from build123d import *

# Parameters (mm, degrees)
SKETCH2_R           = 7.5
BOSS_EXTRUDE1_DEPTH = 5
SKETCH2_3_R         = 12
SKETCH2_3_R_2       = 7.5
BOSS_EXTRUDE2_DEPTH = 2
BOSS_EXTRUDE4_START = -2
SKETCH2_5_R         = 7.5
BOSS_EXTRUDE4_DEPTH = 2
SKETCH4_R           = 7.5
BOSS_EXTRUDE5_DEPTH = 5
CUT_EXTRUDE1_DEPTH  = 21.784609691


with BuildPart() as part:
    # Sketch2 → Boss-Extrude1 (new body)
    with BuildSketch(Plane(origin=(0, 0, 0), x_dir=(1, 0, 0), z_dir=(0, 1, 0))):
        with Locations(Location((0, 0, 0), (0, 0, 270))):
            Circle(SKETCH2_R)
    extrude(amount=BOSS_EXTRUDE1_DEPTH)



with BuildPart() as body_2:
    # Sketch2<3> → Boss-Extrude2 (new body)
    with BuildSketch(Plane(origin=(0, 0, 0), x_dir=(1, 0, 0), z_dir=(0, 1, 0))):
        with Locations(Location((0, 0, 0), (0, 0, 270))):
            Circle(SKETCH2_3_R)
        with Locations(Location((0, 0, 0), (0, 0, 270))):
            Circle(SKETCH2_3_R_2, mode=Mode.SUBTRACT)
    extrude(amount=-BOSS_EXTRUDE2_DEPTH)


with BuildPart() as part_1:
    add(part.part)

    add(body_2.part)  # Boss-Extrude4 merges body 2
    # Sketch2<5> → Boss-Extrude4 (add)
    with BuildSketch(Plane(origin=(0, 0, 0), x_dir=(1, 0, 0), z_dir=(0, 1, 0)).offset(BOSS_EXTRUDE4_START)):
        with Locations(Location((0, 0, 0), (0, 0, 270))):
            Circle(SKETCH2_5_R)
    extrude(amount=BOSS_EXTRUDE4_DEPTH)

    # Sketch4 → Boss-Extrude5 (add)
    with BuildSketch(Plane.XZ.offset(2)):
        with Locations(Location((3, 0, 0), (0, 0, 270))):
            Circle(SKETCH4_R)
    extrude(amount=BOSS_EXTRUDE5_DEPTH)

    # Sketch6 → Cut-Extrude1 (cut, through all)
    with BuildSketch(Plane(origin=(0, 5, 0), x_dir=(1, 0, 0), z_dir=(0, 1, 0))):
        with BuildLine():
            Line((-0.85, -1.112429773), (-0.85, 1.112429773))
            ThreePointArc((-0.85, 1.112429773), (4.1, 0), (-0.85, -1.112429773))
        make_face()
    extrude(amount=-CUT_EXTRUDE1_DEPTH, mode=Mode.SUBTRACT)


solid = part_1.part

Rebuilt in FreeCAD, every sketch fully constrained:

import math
import FreeCAD as App
import Part
import Sketcher
from FreeCAD import Vector

doc = App.newDocument("Part")
body = doc.addObject("PartDesign::Body", "Body")

# Sketch on XZ plane
sketch1 = body.newObject("Sketcher::SketchObject", "Sketch")
sketch1.AttachmentSupport = (doc.getObject("XZ_Plane"), [""])
sketch1.MapMode = "FlatFace"
sketch1.addGeometry(Part.Circle(Vector(0, 0, 0), Vector(0, 0, 1), 8), False)
sketch1.addConstraint([
    Sketcher.Constraint("Coincident", 0, 3, -1, 1),
    Sketcher.Constraint("Diameter", 0, 15.0),
])
pad1 = body.newObject("PartDesign::Pad", "Pad")
pad1.Profile = sketch1
pad1.Length = 5
pad1.Reversed = True
body2 = doc.addObject("PartDesign::Body", "Body001")

# Sketch on XZ plane
sketch2 = body2.newObject("Sketcher::SketchObject", "Sketch001")
sketch2.AttachmentSupport = (doc.getObject("XZ_Plane001"), [""])
sketch2.MapMode = "FlatFace"
sketch2.addGeometry([
    Part.Circle(Vector(0, 0, 0), Vector(0, 0, 1), 12),
    Part.Circle(Vector(0, 0, 0), Vector(0, 0, 1), 8),
], False)
sketch2.addConstraint([
    Sketcher.Constraint("Coincident", 0, 3, -1, 1),
    Sketcher.Constraint("Coincident", 1, 3, -1, 1),
    Sketcher.Constraint("Diameter", 0, 24.0),
    Sketcher.Constraint("Diameter", 1, 15.0),
])
pad2 = body2.newObject("PartDesign::Pad", "Pad001")
pad2.Profile = sketch2
pad2.Length = 2
body.AllowCompound = True
doc.recompute()

boolean = body.newObject("PartDesign::Boolean", "Boolean")
boolean.Type = "Fuse"
boolean.addObjects([body2])

# Sketch on XZ plane
sketch3 = body.newObject("Sketcher::SketchObject", "Sketch002")
sketch3.AttachmentSupport = (doc.getObject("XZ_Plane"), [""])
sketch3.MapMode = "FlatFace"
sketch3.AttachmentOffset = App.Placement(Vector(0, 0, 2), App.Rotation())
sketch3.addGeometry(Part.Circle(Vector(0, 0, 0), Vector(0, 0, 1), 8), False)
sketch3.addConstraint([
    Sketcher.Constraint("Coincident", 0, 3, -1, 1),
    Sketcher.Constraint("Diameter", 0, 15.0),
])
pad3 = body.newObject("PartDesign::Pad", "Pad002")
pad3.Profile = sketch3
pad3.Length = 2
pad3.Reversed = True

# Sketch on XZ plane
sketch4 = body.newObject("Sketcher::SketchObject", "Sketch003")
sketch4.AttachmentSupport = (doc.getObject("XZ_Plane"), [""])
sketch4.MapMode = "FlatFace"
sketch4.AttachmentOffset = App.Placement(Vector(0, 0, 2), App.Rotation())
sketch4.addGeometry(Part.Circle(Vector(3, 0, 0), Vector(0, 0, 1), 8), False)
sketch4.addConstraint([
    Sketcher.Constraint("PointOnObject", 0, 3, -1),
    Sketcher.Constraint("Diameter", 0, 15.0),
    Sketcher.Constraint("DistanceX", -1, 1, 0, 3, 3.0),
])
pad4 = body.newObject("PartDesign::Pad", "Pad003")
pad4.Profile = sketch4
pad4.Length = 5

# Sketch on XZ plane
sketch5 = body.newObject("Sketcher::SketchObject", "Sketch004")
sketch5.AttachmentSupport = (doc.getObject("XZ_Plane"), [""])
sketch5.MapMode = "FlatFace"
sketch5.AttachmentOffset = App.Placement(Vector(0, 0, -5), App.Rotation())
sketch5.addGeometry([
    Part.LineSegment(Vector(-0.8, -1.1, 0), Vector(-0.8, 1.1, 0)),
    Part.ArcOfCircle(Part.Circle(Vector(1.5, 0, 0), Vector(0, 0, 1), 2.6), math.radians(-155), math.radians(155)),
], False)
sketch5.addConstraint([
    Sketcher.Constraint("Coincident", 0, 1, 1, 1),
    Sketcher.Constraint("Coincident", 1, 2, 0, 2),
    Sketcher.Constraint("Vertical", 0),
    Sketcher.Constraint("PointOnObject", 1, 3, -1),
    Sketcher.Constraint("Radius", 1, 2.6),
    Sketcher.Constraint("DistanceX", -1, 1, 1, 3, 1.5),
    Sketcher.Constraint("DistanceX", 0, 1, -1, 1, 0.85),
])
pocket1 = body.newObject("PartDesign::Pocket", "Pocket")
pocket1.Profile = sketch5
pocket1.Type = "ThroughAll"
pocket1.Reversed = True

doc.recompute()
